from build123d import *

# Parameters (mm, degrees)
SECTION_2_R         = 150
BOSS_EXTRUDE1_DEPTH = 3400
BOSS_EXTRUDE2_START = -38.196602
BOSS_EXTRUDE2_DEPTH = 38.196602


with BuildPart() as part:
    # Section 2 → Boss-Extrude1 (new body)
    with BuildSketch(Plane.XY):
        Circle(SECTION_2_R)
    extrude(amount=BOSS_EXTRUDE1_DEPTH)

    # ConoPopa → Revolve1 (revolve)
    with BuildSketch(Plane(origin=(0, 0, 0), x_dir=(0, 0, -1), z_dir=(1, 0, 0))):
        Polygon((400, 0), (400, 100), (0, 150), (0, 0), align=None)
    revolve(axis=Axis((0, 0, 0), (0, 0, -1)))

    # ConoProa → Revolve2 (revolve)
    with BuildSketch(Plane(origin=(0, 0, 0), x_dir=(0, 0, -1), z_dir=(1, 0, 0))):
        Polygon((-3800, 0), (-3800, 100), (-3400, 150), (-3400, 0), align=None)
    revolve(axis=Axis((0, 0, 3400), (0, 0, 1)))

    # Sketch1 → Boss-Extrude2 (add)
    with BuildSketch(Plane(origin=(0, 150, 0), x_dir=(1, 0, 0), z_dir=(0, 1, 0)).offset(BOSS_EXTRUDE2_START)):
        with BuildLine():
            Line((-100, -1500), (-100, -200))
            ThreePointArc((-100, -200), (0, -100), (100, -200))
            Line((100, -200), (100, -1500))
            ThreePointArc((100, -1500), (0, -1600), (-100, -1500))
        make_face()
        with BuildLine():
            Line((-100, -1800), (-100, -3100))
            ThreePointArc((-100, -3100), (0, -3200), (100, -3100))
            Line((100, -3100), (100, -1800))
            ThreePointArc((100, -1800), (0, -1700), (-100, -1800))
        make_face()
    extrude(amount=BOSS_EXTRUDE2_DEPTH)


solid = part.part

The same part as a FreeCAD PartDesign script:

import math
import FreeCAD as App
import Part
import Sketcher

V = App.Vector


def add_polygon(sketch, points):
    """Adds a closed chain of lines whose ends are joined by coincident constraints."""
    first, n = sketch.GeometryCount, len(points)
    for a, b in zip(points, points[1:] + points[:1]):
        sketch.addGeometry(Part.LineSegment(App.Vector(*a, 0), App.Vector(*b, 0)), False)
    for i in range(n):
        sketch.addConstraint(Sketcher.Constraint("Coincident", first + i, 2, first + (i + 1) % n, 1))

doc = App.newDocument("Part")
body = doc.addObject("PartDesign::Body", "Body")

# Sketch on XY plane
sketch1 = body.newObject("Sketcher::SketchObject", "Sketch")
sketch1.AttachmentSupport = (doc.getObject("XY_Plane"), [""])
sketch1.MapMode = "FlatFace"
sketch1.addGeometry(Part.Circle(V(0, 0, 0), V(0, 0, 1), 150), False)
sketch1.addConstraint(Sketcher.Constraint("Coincident", 0, 3, -1, 1))
sketch1.addConstraint(Sketcher.Constraint("Diameter", 0, 300.0))
pad1 = body.newObject("PartDesign::Pad", "Pad")
pad1.Profile = sketch1
pad1.Length = 3400

# Sketch on YZ plane
sketch2 = body.newObject("Sketcher::SketchObject", "Sketch001")
sketch2.AttachmentSupport = (doc.getObject("YZ_Plane"), [""])
sketch2.MapMode = "FlatFace"
add_polygon(sketch2, [(0, -400), (100, -400), (150, 0), (0, 0)])  # lines 0-3
sketch2.addConstraint(Sketcher.Constraint("Horizontal", 0))
sketch2.addConstraint(Sketcher.Constraint("Horizontal", 2))
sketch2.addConstraint(Sketcher.Constraint("Vertical", 3))
sketch2.addConstraint(Sketcher.Constraint("Coincident", 2, 2, -1, 1))
sketch2.addConstraint(Sketcher.Constraint("DistanceX", 0, 1, 0, 2, 100.0))
sketch2.addConstraint(Sketcher.Constraint("DistanceX", 2, 2, 2, 1, 150.0))
sketch2.addConstraint(Sketcher.Constraint("DistanceY", 3, 2, 3, 1, 400.0))
revolution = body.newObject("PartDesign::Revolution", "Revolution")
revolution.Profile = sketch2
revolution.ReferenceAxis = (sketch2, ["V_Axis"])
revolution.Angle = 360

# Sketch on YZ plane
sketch3 = body.newObject("Sketcher::SketchObject", "Sketch002")
sketch3.AttachmentSupport = (doc.getObject("YZ_Plane"), [""])
sketch3.MapMode = "FlatFace"
add_polygon(sketch3, [(100, 3800), (0, 3800), (0, 3400), (150, 3400)])  # lines 0-3
sketch3.addConstraint(Sketcher.Constraint("Horizontal", 0))
sketch3.addConstraint(Sketcher.Constraint("Vertical", 1))
sketch3.addConstraint(Sketcher.Constraint("Horizontal", 2))
sketch3.addConstraint(Sketcher.Constraint("PointOnObject", 0, 2, -2))
sketch3.addConstraint(Sketcher.Constraint("DistanceX", 0, 2, 0, 1, 100.0))
sketch3.addConstraint(Sketcher.Constraint("DistanceX", 2, 1, 2, 2, 150.0))
sketch3.addConstraint(Sketcher.Constraint("DistanceY", 1, 2, 1, 1, 400.0))
sketch3.addConstraint(Sketcher.Constraint("DistanceY", -1, 1, 0, 2, 3800.0))
revolution2 = body.newObject("PartDesign::Revolution", "Revolution001")
revolution2.Profile = sketch3
revolution2.ReferenceAxis = (sketch3, ["V_Axis"])
revolution2.Angle = 360

# Sketch on XZ plane
sketch4 = body.newObject("Sketcher::SketchObject", "Sketch003")
sketch4.AttachmentSupport = (doc.getObject("XZ_Plane"), [""])
sketch4.MapMode = "FlatFace"
sketch4.AttachmentOffset = App.Placement(V(0, 0, -111.803398), App.Rotation())
sketch4.addGeometry(Part.LineSegment(V(-100, 200, 0), V(-100, 1500, 0)), False)
sketch4.addGeometry(Part.ArcOfCircle(Part.Circle(V(0, 1500, 0), V(0, 0, 1), 100), math.radians(0), math.radians(180)), False)
sketch4.addGeometry(Part.LineSegment(V(100, 1500, 0), V(100, 200, 0)), False)
sketch4.addGeometry(Part.ArcOfCircle(Part.Circle(V(0, 200, 0), V(0, 0, 1), 100), math.radians(180), math.radians(360)), False)
sketch4.addGeometry(Part.LineSegment(V(-100, 1800, 0), V(-100, 3100, 0)), False)
sketch4.addGeometry(Part.ArcOfCircle(Part.Circle(V(0, 3100, 0), V(0, 0, 1), 100), math.radians(0), math.radians(180)), False)
sketch4.addGeometry(Part.LineSegment(V(100, 3100, 0), V(100, 1800, 0)), False)
sketch4.addGeometry(Part.ArcOfCircle(Part.Circle(V(0, 1800, 0), V(0, 0, 1), 100), math.radians(180), math.radians(360)), False)
sketch4.addConstraint(Sketcher.Constraint("Tangent", 0, 2, 1, 2))
sketch4.addConstraint(Sketcher.Constraint("Tangent", 1, 1, 2, 1))
sketch4.addConstraint(Sketcher.Constraint("Tangent", 2, 2, 3, 2))
sketch4.addConstraint(Sketcher.Constraint("Tangent", 3, 1, 0, 1))
sketch4.addConstraint(Sketcher.Constraint("Tangent", 4, 2, 5, 2))
sketch4.addConstraint(Sketcher.Constraint("Tangent", 5, 1, 6, 1))
sketch4.addConstraint(Sketcher.Constraint("Tangent", 6, 2, 7, 2))
sketch4.addConstraint(Sketcher.Constraint("Tangent", 7, 1, 4, 1))
sketch4.addConstraint(Sketcher.Constraint("Vertical", 0))
sketch4.addConstraint(Sketcher.Constraint("Vertical", 2))
sketch4.addConstraint(Sketcher.Constraint("Vertical", 4))
sketch4.addConstraint(Sketcher.Constraint("Vertical", 6))
sketch4.addConstraint(Sketcher.Constraint("Equal", 3, 5))
sketch4.addConstraint(Sketcher.Constraint("PointOnObject", 1, 3, -2))
sketch4.addConstraint(Sketcher.Constraint("PointOnObject", 5, 3, -2))
sketch4.addConstraint(Sketcher.Constraint("Equal", 2, 4))
sketch4.addConstraint(Sketcher.Constraint("Radius", 1, 100.0))
sketch4.addConstraint(Sketcher.Constraint("DistanceY", 0, 1, 0, 2, 1300.0))
sketch4.addConstraint(Sketcher.Constraint("DistanceY", -1, 1, 1, 3, 1500.0))
sketch4.addConstraint(Sketcher.Constraint("DistanceY", -1, 1, 5, 3, 3100.0))
pad2 = body.newObject("PartDesign::Pad", "Pad001")
pad2.Profile = sketch4
pad2.Length = 38.196602
pad2.Reversed = True

doc.recompute()
